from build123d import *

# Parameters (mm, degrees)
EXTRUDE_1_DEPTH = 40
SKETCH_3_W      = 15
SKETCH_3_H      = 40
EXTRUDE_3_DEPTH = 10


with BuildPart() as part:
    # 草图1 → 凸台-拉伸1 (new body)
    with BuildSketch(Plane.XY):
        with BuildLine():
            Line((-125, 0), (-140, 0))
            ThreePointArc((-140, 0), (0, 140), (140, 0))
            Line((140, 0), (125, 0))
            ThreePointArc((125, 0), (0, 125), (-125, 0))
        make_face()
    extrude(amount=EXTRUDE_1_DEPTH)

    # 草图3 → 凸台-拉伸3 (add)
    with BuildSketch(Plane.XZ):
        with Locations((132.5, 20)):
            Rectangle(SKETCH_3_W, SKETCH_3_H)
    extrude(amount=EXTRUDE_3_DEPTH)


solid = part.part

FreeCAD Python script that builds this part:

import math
import FreeCAD as App
import Part
import Sketcher

doc = App.newDocument("Part")
body = doc.addObject("PartDesign::Body", "Body")

# Sketch on XY plane
sketch1 = body.newObject("Sketcher::SketchObject", "Sketch")
sketch1.AttachmentSupport = (doc.getObject("XY_Plane"), [""])
sketch1.MapMode = "FlatFace"
sketch1.addGeometry([
    Part.LineSegment(App.Vector(-140, 0, 0), App.Vector(-125, 0, 0)),
    Part.ArcOfCircle(Part.Circle(App.Vector(0, 0, 0), App.Vector(0, 0, 1), 125), math.radians(0), math.radians(180)),
    Part.LineSegment(App.Vector(125, 0, 0), App.Vector(140, 0, 0)),
    Part.ArcOfCircle(Part.Circle(App.Vector(0, 0, 0), App.Vector(0, 0, 1), 140), math.radians(0), math.radians(180)),
], False)
sketch1.addConstraint([
    Sketcher.Constraint("Coincident", 0, 2, 1, 2),
    Sketcher.Constraint("Coincident", 1, 1, 2, 1),
    Sketcher.Constraint("Coincident", 2, 2, 3, 1),
    Sketcher.Constraint("Coincident", 3, 2, 0, 1),
    Sketcher.Constraint("Horizontal", 0),
    Sketcher.Constraint("Horizontal", 2),
    Sketcher.Constraint("Coincident", 1, 3, -1, 1),
    Sketcher.Constraint("Coincident", 3, 3, -1, 1),
    Sketcher.Constraint("PointOnObject", 0, 2, -1),
    Sketcher.Constraint("PointOnObject", 1, 1, -1),
    Sketcher.Constraint("Radius", 1, 125.0),
    Sketcher.Constraint("Radius", 3, 140.0),
])
pad1 = body.newObject("PartDesign::Pad", "Pad")
pad1.Profile = sketch1
pad1.Length = 40

# Sketch on XZ plane
sketch2 = body.newObject("Sketcher::SketchObject", "Sketch001")
sketch2.AttachmentSupport = (doc.getObject("XZ_Plane"), [""])
sketch2.MapMode = "FlatFace"
sketch2.addGeometry([
    Part.LineSegment(App.Vector(125, 40, 0), App.Vector(125, 0, 0)),
    Part.LineSegment(App.Vector(125, 0, 0), App.Vector(140, 0, 0)),
    Part.LineSegment(App.Vector(140, 0, 0), App.Vector(140, 40, 0)),
    Part.LineSegment(App.Vector(140, 40, 0), App.Vector(125, 40, 0)),
], False)
sketch2.addConstraint([
    Sketcher.Constraint("Coincident", 0, 2, 1, 1),
    Sketcher.Constraint("Coincident", 1, 2, 2, 1),
    Sketcher.Constraint("Coincident", 2, 2, 3, 1),
    Sketcher.Constraint("Coincident", 3, 2, 0, 1),
    Sketcher.Constraint("Vertical", 0),
    Sketcher.Constraint("Horizontal", 1),
    Sketcher.Constraint("Vertical", 2),
    Sketcher.Constraint("Horizontal", 3),
    Sketcher.Constraint("PointOnObject", 0, 2, -1),
    Sketcher.Constraint("DistanceX", 1, 1, 1, 2, 15.0),
    Sketcher.Constraint("DistanceY", 0, 2, 0, 1, 40.0),
    Sketcher.Constraint("DistanceX", -1, 1, 0, 2, 125.0),
])
pad2 = body.newObject("PartDesign::Pad", "Pad001")
pad2.Profile = sketch2
pad2.Length = 10

doc.recompute()
